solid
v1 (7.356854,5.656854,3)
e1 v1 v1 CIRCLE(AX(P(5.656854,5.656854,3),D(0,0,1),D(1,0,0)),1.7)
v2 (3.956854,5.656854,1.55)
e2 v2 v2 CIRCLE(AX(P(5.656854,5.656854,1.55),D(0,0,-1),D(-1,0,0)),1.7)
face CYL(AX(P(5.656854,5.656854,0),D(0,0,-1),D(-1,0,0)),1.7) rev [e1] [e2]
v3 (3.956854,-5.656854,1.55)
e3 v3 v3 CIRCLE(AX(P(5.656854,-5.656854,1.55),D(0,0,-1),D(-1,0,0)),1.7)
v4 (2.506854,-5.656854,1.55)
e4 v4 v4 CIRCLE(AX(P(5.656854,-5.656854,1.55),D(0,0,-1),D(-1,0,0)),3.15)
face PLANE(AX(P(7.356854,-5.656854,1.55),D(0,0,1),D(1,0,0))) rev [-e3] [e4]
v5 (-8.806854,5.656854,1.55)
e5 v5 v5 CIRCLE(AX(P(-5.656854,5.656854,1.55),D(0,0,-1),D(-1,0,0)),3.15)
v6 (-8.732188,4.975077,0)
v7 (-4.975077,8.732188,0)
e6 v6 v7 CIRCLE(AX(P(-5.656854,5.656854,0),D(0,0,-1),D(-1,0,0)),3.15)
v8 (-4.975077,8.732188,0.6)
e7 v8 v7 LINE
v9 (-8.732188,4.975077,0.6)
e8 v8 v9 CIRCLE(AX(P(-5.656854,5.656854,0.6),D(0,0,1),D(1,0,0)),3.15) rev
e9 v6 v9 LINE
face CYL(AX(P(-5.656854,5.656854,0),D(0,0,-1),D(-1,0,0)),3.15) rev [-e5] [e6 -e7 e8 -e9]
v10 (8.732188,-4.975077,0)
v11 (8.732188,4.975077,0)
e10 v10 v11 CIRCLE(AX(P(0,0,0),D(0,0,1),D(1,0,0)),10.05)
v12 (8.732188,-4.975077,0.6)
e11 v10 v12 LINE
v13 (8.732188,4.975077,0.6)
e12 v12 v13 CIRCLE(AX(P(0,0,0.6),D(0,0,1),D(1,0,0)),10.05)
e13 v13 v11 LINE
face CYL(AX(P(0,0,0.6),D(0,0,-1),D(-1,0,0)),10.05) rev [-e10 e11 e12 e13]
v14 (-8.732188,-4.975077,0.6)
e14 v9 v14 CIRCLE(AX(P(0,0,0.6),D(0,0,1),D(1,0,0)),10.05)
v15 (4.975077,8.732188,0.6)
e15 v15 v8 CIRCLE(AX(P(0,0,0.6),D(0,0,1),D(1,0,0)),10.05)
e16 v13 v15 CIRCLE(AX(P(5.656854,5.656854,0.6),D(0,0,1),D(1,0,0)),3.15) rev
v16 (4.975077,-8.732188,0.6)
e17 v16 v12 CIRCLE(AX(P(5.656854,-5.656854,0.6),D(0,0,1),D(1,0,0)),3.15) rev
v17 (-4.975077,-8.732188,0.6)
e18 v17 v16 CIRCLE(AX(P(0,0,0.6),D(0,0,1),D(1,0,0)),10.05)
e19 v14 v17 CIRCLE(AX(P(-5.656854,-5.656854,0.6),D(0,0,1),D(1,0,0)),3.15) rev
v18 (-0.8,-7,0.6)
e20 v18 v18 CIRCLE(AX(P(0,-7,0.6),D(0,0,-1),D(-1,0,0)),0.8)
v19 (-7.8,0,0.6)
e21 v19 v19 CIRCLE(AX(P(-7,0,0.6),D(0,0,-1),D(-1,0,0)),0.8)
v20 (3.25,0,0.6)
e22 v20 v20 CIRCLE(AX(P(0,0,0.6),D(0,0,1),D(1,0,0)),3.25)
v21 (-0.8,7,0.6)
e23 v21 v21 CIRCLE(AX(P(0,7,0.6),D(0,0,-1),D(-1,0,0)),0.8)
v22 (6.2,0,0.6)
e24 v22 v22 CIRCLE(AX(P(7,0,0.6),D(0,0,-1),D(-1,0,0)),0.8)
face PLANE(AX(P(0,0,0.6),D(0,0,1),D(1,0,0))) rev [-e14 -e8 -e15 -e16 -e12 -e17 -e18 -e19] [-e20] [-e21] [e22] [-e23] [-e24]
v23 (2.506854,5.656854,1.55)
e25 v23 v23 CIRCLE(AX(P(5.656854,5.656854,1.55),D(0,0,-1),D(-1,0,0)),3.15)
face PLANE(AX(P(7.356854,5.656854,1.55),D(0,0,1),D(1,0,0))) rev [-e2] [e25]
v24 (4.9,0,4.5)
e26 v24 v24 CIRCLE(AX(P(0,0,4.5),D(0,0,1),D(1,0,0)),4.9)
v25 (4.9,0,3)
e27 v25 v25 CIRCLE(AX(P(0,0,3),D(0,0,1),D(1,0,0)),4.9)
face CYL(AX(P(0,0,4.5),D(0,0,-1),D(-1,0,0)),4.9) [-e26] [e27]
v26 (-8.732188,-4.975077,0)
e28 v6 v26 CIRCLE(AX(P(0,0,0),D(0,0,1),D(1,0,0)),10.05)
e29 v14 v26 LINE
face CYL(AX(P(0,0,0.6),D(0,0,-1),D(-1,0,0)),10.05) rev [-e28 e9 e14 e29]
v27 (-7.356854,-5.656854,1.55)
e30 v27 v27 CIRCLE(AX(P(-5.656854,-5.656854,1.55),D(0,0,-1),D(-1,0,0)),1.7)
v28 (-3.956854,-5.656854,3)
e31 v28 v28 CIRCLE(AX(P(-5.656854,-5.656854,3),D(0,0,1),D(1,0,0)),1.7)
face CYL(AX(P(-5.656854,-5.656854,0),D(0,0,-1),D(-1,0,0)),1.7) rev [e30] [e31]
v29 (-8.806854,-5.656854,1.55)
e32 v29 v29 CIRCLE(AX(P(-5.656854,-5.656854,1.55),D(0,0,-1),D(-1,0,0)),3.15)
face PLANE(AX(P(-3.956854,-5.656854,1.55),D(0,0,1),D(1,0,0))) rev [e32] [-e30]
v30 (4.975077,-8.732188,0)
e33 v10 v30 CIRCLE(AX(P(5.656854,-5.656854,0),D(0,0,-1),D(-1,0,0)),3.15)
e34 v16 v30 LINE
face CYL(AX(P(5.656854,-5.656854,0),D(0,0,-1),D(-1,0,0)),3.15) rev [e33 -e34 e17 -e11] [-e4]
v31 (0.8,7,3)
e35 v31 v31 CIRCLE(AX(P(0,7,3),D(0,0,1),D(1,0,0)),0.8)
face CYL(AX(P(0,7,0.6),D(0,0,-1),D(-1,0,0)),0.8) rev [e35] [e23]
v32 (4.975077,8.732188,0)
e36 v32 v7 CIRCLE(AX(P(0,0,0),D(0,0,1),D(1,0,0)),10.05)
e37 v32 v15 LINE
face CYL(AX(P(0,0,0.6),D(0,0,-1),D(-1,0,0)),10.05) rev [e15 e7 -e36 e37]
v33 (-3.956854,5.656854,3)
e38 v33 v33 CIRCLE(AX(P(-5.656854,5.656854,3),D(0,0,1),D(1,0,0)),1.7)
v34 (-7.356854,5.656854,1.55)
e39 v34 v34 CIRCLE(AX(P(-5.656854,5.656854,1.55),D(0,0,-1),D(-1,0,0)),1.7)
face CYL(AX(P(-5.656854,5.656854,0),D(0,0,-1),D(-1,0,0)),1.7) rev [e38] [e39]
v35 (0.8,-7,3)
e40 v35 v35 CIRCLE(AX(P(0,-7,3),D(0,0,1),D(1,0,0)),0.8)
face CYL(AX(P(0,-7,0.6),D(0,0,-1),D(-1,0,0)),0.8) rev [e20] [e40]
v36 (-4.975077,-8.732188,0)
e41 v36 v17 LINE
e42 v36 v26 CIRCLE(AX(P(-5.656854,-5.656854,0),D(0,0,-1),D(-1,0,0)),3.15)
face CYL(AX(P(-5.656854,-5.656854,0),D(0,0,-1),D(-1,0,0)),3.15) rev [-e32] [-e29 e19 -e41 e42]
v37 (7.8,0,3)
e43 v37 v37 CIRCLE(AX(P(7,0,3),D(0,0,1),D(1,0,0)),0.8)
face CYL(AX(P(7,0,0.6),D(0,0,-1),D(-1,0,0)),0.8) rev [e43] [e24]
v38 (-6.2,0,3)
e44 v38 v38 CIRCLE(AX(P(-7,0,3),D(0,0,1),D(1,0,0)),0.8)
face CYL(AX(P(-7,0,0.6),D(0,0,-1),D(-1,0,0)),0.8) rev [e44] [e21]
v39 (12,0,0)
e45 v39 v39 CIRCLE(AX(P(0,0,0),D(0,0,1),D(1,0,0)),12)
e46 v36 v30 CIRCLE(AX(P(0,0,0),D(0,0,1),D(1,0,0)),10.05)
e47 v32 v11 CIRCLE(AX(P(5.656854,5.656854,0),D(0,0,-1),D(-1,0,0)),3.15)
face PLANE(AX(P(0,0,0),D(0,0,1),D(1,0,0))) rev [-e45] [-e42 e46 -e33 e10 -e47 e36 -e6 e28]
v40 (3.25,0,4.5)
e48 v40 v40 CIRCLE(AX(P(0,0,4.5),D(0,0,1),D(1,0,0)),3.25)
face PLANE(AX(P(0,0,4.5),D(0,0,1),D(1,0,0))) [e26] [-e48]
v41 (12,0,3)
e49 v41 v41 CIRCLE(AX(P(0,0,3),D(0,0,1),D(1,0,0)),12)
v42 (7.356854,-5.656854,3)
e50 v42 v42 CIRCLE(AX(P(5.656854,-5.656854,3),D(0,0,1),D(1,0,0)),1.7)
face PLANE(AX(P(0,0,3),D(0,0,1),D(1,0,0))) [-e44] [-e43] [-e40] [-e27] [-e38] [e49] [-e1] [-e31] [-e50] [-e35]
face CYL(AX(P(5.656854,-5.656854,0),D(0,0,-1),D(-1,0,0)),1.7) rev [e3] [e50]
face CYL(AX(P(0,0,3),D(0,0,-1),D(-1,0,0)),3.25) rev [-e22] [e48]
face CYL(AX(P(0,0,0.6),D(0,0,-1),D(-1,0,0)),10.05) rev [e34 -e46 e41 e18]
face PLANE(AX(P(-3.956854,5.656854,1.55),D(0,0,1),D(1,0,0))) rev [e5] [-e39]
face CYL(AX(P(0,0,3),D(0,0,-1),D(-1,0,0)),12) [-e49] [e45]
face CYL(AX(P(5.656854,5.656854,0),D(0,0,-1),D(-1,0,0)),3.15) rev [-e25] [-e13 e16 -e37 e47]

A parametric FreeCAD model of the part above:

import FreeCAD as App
import Part
import Sketcher
Q = App.Units.Quantity

doc = App.newDocument("Part")
body = doc.addObject("PartDesign::Body", "Body")

sketch1 = body.newObject("Sketcher::SketchObject", "Sketch")
sketch1.AttachmentSupport = (doc.getObject("XY_Plane"), [""])
sketch1.MapMode = "FlatFace"
sketch1.addGeometry([
    Part.Circle(App.Vector(0, 0, 0), App.Vector(0, 0, 1), 12),
    Part.Circle(App.Vector(0, 0, 0), App.Vector(0, 0, 1), 3.2),
], False)
sketch1.addConstraint([
    Sketcher.Constraint("Coincident", 0, 3, -1, 1),
    Sketcher.Constraint("Coincident", 1, 3, -1, 1),
    Sketcher.Constraint("Diameter", 0, Q("24 mm")),
    Sketcher.Constraint("Diameter", 1, Q("6.5 mm")),
])
pad1 = body.newObject("PartDesign::Pad", "Pad")
pad1.Profile = sketch1
pad1.Length = 3

sketch2 = body.newObject("Sketcher::SketchObject", "Sketch001")
sketch2.AttachmentSupport = (doc.getObject("XY_Plane"), [""])
sketch2.MapMode = "FlatFace"
sketch2.AttachmentOffset = App.Placement(App.Vector(0, 0, 3), App.Rotation())
sketch2.addGeometry([
    Part.Circle(App.Vector(0, 0, 0), App.Vector(0, 0, 1), 4.9),
    Part.Circle(App.Vector(0, 0, 0), App.Vector(0, 0, 1), 3.2),
], False)
sketch2.addConstraint([
    Sketcher.Constraint("Coincident", 0, 3, -1, 1),
    Sketcher.Constraint("Coincident", 1, 3, -1, 1),
    Sketcher.Constraint("Diameter", 0, Q("9.8 mm")),
    Sketcher.Constraint("Diameter", 1, Q("6.5 mm")),
])
pad2 = body.newObject("PartDesign::Pad", "Pad001")
pad2.Profile = sketch2
pad2.Length = 1.5

sketch3 = body.newObject("Sketcher::SketchObject", "Sketch002")
sketch3.AttachmentSupport = (doc.getObject("XY_Plane"), [""])
sketch3.MapMode = "FlatFace"
sketch3.addGeometry([
    Part.Circle(App.Vector(5.7, -5.7, 0), App.Vector(0, 0, 1), 1.7),
    Part.Circle(App.Vector(-5.7, -5.7, 0), App.Vector(0, 0, 1), 1.7),
    Part.Circle(App.Vector(-5.7, 5.7, 0), App.Vector(0, 0, 1), 1.7),
    Part.Circle(App.Vector(5.7, 5.7, 0), App.Vector(0, 0, 1), 1.7),
], False)
sketch3.addConstraint([
    Sketcher.Constraint("Equal", 0, 1),
    Sketcher.Constraint("Equal", 1, 2),
    Sketcher.Constraint("Equal", 2, 3),
    Sketcher.Constraint("Symmetric", 0, 3, 2, 3, -1, 1),
    Sketcher.Constraint("Symmetric", 1, 3, 3, 3, -1, 1),
    Sketcher.Constraint("Symmetric", 0, 3, 1, 3, -2),
    Sketcher.Constraint("Diameter", 0, Q("3.4 mm")),
    Sketcher.Constraint("DistanceX", 1, 3, 0, 3, Q("11.313708 mm")),
    Sketcher.Constraint("DistanceY", 1, 3, 2, 3, Q("11.313708 mm")),
])
doc.recompute()
hole = body.newObject("PartDesign::Hole", "Hole")
hole.Profile = sketch3
hole.ThreadType = "None"
hole.Diameter = 3.4
hole.DepthType = "ThroughAll"
hole.HoleCutType = "Counterbore"
hole.HoleCutDiameter = 6.3
hole.HoleCutDepth = 1.55
hole.Reversed = True

sketch4 = body.newObject("Sketcher::SketchObject", "Sketch003")
sketch4.AttachmentSupport = (doc.getObject("XY_Plane"), [""])
sketch4.MapMode = "FlatFace"
sketch4.addGeometry(Part.Circle(App.Vector(0, 0, 0), App.Vector(0, 0, 1), 10), False)
sketch4.addConstraint([
    Sketcher.Constraint("Coincident", 0, 3, -1, 1),
    Sketcher.Constraint("Diameter", 0, Q("20.1 mm")),
])
pocket1 = body.newObject("PartDesign::Pocket", "Pocket")
pocket1.Profile = sketch4
pocket1.Length = 0.6
pocket1.Reversed = True

sketch5 = body.newObject("Sketcher::SketchObject", "Sketch004")
sketch5.AttachmentSupport = (doc.getObject("XY_Plane"), [""])
sketch5.MapMode = "FlatFace"
sketch5.AttachmentOffset = App.Placement(App.Vector(0, 0, 0.6), App.Rotation())
sketch5.addGeometry([
    Part.Circle(App.Vector(0, -7, 0), App.Vector(0, 0, 1), 0.8),
    Part.Circle(App.Vector(-7, 0, 0), App.Vector(0, 0, 1), 0.8),
    Part.Circle(App.Vector(0, 7, 0), App.Vector(0, 0, 1), 0.8),
    Part.Circle(App.Vector(7, 0, 0), App.Vector(0, 0, 1), 0.8),
], False)
sketch5.addConstraint([
    Sketcher.Constraint("Equal", 0, 1),
    Sketcher.Constraint("Equal", 1, 2),
    Sketcher.Constraint("Equal", 2, 3),
    Sketcher.Constraint("Symmetric", 0, 3, 2, 3, -1, 1),
    Sketcher.Constraint("Symmetric", 1, 3, 3, 3, -1, 1),
    Sketcher.Constraint("PointOnObject", 0, 3, -2),
    Sketcher.Constraint("PointOnObject", 1, 3, -1),
    Sketcher.Constraint("Diameter", 0, Q("1.6 mm")),
    Sketcher.Constraint("DistanceY", 0, 3, -1, 1, Q("7 mm")),
    Sketcher.Constraint("DistanceX", 1, 3, -1, 1, Q("7 mm")),
])
doc.recompute()
hole2 = body.newObject("PartDesign::Hole", "Hole001")
hole2.Profile = sketch5
hole2.ThreadType = "None"
hole2.Diameter = 1.6
hole2.DepthType = "ThroughAll"
hole2.Reversed = True

doc.recompute()
